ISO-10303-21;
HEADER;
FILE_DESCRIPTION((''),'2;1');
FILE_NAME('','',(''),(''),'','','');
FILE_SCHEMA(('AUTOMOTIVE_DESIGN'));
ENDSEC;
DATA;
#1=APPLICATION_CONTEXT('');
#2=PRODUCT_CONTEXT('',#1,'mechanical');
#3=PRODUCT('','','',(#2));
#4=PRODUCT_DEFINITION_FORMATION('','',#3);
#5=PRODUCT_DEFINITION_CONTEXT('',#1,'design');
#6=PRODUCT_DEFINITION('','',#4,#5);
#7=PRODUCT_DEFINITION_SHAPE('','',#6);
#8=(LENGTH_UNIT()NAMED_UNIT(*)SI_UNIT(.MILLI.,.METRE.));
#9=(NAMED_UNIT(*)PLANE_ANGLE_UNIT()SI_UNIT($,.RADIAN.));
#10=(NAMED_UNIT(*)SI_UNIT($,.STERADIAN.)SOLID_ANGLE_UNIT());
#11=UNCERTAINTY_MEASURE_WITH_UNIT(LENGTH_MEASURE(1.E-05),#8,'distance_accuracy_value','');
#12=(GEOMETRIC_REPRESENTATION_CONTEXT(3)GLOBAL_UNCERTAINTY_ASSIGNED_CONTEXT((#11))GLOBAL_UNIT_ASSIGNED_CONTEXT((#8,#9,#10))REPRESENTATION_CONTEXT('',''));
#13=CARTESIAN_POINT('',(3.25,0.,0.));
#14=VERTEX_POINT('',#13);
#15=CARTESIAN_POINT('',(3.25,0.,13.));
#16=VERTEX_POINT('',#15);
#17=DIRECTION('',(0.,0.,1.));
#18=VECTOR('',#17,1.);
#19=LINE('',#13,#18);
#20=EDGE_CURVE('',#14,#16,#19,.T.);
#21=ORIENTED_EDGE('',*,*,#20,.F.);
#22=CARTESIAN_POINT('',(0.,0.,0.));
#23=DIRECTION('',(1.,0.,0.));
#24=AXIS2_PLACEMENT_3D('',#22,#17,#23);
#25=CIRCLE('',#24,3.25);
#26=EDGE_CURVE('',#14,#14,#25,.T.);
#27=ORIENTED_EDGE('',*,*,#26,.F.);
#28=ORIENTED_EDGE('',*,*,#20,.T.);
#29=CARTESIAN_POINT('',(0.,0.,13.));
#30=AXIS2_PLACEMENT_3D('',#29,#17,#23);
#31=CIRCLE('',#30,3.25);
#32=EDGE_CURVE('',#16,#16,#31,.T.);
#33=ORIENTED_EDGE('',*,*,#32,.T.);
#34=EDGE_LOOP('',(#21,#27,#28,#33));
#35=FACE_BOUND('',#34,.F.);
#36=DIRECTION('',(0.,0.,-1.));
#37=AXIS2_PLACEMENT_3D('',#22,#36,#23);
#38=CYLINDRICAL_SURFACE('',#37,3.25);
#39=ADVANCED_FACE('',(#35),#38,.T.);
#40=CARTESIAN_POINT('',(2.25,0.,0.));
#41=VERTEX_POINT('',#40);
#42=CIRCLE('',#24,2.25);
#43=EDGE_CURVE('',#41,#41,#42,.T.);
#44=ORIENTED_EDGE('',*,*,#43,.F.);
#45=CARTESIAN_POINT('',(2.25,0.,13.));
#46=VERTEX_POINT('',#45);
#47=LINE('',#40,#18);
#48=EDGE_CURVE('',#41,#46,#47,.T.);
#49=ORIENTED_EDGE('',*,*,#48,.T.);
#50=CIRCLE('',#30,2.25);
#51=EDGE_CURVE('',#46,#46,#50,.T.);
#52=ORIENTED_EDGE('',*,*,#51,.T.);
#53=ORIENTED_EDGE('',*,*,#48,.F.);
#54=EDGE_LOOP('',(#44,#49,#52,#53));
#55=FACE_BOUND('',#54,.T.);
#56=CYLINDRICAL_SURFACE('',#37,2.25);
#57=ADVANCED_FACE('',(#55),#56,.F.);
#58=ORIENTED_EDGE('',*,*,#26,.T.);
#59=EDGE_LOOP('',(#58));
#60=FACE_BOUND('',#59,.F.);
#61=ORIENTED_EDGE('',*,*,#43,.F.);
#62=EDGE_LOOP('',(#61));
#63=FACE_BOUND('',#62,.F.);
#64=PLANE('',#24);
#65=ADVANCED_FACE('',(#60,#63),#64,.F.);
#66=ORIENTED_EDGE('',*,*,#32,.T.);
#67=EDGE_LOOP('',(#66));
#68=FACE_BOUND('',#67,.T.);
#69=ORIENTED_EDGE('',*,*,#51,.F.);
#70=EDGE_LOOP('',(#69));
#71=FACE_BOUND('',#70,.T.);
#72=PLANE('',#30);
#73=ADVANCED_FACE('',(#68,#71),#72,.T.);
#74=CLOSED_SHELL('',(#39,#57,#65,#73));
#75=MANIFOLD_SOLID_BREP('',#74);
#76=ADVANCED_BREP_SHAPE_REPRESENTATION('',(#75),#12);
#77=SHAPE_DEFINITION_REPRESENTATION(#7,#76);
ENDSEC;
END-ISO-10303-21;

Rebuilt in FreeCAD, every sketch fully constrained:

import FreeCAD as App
import Part
import Sketcher

doc = App.newDocument("Part")
body = doc.addObject("PartDesign::Body", "Body")

sketch1 = doc.addObject("Sketcher::SketchObject", "Sketch")
body.addObject(sketch1)
sketch1.AttachmentSupport = (doc.XY_Plane, [""])
sketch1.MapMode = "FlatFace"
sketch1.addGeometry([
    Part.Circle(App.Vector(0, 0, 0), App.Vector(0, 0, 1), 3.25),
    Part.Circle(App.Vector(0, 0, 0), App.Vector(0, 0, 1), 2.25),
], False)
sketch1.addConstraint([
    Sketcher.Constraint("Coincident", 0, 3, -1, 1),
    Sketcher.Constraint("Coincident", 1, 3, -1, 1),
    Sketcher.Constraint("Diameter", 1, 4.5),
    Sketcher.Constraint("Diameter", 0, 6.5),
])
pad1 = doc.addObject("PartDesign::Pad", "Pad")
body.addObject(pad1)
pad1.Profile = sketch1
pad1.Length = 13

doc.recompute()
